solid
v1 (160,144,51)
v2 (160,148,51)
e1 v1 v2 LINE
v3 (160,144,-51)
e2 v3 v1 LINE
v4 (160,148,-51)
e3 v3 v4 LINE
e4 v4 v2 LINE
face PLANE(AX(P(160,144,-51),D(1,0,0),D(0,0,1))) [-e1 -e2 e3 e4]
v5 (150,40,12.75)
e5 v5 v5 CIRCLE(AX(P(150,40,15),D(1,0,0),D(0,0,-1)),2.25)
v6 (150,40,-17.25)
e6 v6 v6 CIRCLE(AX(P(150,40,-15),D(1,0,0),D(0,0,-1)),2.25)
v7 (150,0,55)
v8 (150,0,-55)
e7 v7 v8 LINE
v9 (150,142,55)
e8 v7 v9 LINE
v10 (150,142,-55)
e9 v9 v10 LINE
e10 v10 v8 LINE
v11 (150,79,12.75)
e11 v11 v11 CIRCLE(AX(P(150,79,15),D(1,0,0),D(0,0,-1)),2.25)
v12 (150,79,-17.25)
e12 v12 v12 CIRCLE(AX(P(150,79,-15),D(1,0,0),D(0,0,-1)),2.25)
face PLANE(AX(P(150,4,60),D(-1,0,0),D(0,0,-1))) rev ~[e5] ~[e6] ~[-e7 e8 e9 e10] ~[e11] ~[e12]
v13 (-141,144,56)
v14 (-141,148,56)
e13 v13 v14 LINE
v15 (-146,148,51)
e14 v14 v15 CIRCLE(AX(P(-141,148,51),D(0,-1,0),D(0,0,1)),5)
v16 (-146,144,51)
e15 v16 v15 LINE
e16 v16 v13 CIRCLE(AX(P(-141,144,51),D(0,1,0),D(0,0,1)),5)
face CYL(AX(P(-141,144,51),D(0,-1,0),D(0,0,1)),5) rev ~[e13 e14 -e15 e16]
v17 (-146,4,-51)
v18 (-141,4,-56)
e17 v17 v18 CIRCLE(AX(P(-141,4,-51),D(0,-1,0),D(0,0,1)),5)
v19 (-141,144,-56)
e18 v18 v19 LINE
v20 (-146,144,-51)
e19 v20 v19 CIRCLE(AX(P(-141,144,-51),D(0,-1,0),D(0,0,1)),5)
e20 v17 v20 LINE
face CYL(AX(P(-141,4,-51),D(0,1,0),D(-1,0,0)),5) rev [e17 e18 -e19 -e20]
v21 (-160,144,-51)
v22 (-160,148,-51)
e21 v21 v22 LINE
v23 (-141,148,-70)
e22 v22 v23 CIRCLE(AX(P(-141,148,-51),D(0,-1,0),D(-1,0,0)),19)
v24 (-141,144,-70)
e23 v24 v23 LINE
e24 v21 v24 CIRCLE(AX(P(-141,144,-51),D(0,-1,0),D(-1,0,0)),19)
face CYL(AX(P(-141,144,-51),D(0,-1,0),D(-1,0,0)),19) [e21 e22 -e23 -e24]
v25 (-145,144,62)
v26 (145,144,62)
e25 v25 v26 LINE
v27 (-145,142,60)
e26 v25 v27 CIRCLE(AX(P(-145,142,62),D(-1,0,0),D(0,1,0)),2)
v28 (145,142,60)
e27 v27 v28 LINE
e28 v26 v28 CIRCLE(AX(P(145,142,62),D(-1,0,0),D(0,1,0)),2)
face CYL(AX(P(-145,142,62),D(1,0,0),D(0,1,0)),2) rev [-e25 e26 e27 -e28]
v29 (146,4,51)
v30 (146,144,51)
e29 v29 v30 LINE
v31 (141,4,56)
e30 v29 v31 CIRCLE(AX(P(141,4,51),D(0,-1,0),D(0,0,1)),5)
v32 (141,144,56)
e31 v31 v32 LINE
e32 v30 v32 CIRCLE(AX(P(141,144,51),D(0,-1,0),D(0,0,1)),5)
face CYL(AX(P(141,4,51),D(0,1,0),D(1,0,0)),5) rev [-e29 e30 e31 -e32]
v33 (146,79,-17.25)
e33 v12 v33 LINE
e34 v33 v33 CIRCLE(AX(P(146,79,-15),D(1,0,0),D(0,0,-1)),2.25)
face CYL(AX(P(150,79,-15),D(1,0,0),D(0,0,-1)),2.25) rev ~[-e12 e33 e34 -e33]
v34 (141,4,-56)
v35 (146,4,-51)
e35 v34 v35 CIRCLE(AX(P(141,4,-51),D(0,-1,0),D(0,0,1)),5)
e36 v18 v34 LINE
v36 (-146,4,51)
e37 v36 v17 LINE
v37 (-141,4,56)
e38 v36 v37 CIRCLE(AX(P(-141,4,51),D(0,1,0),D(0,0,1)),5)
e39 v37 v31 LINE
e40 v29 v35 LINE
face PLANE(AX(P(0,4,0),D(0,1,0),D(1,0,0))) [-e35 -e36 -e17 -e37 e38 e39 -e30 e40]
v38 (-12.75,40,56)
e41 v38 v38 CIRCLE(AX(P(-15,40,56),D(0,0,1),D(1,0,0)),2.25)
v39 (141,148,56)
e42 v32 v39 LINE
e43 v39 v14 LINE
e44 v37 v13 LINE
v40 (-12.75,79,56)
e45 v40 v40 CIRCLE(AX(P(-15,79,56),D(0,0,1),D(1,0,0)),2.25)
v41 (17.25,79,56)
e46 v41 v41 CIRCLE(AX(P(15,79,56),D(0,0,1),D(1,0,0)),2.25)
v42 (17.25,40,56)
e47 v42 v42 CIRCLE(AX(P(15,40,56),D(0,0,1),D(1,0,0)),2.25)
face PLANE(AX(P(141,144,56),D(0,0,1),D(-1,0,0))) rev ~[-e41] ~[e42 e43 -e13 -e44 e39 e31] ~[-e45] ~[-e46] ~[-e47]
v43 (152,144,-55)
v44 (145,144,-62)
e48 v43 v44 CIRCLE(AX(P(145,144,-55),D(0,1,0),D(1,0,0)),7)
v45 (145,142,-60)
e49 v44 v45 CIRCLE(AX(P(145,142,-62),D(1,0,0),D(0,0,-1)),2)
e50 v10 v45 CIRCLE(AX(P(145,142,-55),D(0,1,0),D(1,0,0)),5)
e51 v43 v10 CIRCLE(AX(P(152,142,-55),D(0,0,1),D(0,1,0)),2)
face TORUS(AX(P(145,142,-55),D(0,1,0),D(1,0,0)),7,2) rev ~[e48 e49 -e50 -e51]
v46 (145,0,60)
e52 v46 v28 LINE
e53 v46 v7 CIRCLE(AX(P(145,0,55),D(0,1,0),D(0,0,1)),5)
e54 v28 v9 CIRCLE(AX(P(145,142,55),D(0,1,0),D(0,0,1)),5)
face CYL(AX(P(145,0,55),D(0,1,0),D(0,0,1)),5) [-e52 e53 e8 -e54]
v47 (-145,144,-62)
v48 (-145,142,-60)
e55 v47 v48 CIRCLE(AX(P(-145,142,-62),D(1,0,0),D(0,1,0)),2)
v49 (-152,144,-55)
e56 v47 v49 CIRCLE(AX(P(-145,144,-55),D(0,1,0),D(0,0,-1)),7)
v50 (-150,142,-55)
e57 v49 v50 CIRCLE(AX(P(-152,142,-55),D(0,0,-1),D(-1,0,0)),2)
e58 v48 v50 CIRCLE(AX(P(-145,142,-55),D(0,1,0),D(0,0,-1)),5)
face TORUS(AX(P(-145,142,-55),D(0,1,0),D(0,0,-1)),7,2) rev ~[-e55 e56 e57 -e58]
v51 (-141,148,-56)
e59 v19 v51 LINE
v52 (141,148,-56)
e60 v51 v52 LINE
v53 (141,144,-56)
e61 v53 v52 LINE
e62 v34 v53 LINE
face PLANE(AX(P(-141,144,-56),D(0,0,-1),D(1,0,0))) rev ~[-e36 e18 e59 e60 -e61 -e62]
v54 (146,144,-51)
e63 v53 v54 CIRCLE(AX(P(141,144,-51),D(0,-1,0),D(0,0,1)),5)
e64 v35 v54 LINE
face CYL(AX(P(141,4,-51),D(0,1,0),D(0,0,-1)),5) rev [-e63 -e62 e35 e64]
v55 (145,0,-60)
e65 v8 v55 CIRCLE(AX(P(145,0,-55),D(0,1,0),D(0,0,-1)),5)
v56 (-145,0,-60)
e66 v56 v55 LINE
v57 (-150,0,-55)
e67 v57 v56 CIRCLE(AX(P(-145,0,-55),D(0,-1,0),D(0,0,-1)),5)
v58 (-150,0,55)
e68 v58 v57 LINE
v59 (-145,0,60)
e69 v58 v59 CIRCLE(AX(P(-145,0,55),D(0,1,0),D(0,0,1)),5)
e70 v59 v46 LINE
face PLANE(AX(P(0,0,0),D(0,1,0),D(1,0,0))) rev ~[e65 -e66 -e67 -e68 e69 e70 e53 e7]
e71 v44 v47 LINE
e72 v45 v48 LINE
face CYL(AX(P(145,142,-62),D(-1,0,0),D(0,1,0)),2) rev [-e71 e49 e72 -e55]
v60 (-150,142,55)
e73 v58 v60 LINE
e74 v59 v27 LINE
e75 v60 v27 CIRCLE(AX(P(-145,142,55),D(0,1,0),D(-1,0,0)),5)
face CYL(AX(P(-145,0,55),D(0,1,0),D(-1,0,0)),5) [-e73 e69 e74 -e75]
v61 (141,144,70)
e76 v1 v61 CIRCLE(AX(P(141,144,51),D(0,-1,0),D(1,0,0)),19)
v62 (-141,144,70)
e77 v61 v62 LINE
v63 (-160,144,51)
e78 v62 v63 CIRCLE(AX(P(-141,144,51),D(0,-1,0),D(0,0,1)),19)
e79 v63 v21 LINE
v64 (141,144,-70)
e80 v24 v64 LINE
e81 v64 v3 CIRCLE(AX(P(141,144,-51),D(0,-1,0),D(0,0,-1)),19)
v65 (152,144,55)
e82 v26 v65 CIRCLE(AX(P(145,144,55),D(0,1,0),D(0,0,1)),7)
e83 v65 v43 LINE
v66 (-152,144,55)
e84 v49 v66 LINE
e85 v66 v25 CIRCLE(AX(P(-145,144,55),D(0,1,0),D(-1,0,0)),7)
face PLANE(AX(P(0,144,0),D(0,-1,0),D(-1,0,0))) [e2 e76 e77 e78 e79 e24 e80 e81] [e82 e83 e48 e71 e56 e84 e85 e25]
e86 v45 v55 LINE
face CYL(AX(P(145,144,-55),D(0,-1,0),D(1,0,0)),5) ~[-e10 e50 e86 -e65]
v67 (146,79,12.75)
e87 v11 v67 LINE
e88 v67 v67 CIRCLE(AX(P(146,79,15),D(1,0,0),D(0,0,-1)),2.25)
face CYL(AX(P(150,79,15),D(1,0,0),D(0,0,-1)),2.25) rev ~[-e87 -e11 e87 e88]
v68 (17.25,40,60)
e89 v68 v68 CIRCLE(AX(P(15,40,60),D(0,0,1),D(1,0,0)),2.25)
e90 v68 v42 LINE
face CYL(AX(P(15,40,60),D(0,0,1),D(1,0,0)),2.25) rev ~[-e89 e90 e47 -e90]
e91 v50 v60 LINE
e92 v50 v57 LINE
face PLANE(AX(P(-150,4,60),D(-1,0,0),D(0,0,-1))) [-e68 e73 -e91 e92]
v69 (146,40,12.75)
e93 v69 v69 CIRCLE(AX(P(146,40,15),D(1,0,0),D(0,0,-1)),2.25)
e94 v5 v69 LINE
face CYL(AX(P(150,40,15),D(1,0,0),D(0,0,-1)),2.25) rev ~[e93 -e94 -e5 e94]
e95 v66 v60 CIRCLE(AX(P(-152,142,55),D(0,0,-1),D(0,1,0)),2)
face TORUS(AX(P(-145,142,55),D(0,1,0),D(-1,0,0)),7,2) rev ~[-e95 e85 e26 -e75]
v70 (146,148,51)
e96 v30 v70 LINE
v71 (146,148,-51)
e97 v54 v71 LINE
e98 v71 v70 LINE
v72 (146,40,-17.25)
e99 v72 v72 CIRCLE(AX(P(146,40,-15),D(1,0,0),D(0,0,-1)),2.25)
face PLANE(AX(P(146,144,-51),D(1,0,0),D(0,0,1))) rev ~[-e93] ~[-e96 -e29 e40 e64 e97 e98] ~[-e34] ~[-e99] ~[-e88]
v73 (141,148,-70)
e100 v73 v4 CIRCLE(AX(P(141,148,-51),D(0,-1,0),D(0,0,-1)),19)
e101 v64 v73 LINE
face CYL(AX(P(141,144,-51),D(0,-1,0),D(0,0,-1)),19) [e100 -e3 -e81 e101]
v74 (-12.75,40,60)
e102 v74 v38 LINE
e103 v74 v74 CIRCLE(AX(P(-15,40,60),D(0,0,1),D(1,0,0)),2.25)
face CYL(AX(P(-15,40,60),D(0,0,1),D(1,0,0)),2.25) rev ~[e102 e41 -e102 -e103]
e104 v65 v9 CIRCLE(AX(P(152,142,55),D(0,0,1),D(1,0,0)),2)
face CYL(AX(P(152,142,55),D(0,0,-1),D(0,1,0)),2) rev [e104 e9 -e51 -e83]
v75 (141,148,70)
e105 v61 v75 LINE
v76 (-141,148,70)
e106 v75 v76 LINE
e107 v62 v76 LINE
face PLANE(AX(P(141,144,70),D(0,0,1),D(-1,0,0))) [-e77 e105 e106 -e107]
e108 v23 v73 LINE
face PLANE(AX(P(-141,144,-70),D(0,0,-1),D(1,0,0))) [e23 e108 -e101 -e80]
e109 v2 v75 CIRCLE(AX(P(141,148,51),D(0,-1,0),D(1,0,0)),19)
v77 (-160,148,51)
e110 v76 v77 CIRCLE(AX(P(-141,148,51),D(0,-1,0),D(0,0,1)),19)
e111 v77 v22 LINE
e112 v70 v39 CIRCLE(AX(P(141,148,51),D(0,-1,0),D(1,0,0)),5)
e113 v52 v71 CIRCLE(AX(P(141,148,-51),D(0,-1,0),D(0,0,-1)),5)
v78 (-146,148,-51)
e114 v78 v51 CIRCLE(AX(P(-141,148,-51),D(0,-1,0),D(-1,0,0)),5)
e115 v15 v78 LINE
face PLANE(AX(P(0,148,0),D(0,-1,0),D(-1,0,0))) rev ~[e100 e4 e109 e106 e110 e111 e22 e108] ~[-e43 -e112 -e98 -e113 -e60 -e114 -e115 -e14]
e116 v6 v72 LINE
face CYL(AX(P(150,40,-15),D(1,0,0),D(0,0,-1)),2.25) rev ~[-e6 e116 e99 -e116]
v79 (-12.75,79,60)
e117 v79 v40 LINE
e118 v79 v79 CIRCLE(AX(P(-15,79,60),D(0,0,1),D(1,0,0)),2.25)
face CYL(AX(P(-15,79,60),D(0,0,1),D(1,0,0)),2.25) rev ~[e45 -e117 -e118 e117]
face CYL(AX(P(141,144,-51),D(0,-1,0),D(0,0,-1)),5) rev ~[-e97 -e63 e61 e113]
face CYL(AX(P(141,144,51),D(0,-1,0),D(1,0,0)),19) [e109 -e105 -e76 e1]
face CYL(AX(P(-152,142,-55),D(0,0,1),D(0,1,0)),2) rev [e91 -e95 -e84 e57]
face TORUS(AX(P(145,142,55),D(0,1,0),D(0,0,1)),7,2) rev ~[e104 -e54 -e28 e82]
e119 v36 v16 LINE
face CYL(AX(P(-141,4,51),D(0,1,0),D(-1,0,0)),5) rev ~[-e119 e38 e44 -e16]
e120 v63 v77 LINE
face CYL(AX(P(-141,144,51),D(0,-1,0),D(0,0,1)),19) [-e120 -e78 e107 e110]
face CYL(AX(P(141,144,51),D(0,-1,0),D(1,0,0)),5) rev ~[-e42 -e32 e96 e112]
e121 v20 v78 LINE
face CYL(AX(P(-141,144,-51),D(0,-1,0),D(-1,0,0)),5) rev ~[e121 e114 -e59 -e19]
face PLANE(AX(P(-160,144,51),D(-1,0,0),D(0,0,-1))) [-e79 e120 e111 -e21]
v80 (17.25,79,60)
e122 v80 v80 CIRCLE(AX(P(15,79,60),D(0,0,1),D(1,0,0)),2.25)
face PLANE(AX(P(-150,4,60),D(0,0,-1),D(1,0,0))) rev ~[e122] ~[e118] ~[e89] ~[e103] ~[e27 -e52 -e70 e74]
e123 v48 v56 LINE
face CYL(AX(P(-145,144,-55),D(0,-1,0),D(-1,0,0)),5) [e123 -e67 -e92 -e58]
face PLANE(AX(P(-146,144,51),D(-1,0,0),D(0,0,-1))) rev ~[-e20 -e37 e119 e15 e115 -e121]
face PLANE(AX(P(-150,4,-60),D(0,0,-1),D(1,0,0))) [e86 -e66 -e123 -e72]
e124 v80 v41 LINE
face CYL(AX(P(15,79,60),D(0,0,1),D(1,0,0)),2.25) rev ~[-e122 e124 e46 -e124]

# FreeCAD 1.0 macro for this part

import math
import FreeCAD as App
import Part
import Sketcher
from FreeCAD import Vector


def edges_at(feature, points):
    """Names of the edges that pass closest to the given points."""
    edges = feature.Shape.Edges
    near = lambda p: min(range(len(edges)), key=lambda i: edges[i].distToShape(Part.Vertex(*p))[0])
    return sorted({f"Edge{near(p) + 1}" for p in points})

doc = App.newDocument("Part")
body = doc.addObject("PartDesign::Body", "Body")

sketch1 = body.newObject("Sketcher::SketchObject", "Sketch")
sketch1.AttachmentSupport = (doc.getObject("XZ_Plane"), [""])
sketch1.MapMode = "FlatFace"
sketch1.addGeometry([
    Part.LineSegment(Vector(-150, -60, 0), Vector(-150, 60, 0)),
    Part.LineSegment(Vector(-150, 60, 0), Vector(150, 60, 0)),
    Part.LineSegment(Vector(150, 60, 0), Vector(150, -60, 0)),
    Part.LineSegment(Vector(150, -60, 0), Vector(-150, -60, 0)),
], False)
sketch1.addConstraint([
    Sketcher.Constraint("Coincident", 0, 2, 1, 1),
    Sketcher.Constraint("Coincident", 1, 2, 2, 1),
    Sketcher.Constraint("Coincident", 2, 2, 3, 1),
    Sketcher.Constraint("Coincident", 3, 2, 0, 1),
    Sketcher.Constraint("Vertical", 0),
    Sketcher.Constraint("Horizontal", 1),
    Sketcher.Constraint("Vertical", 2),
    Sketcher.Constraint("Horizontal", 3),
    Sketcher.Constraint("Symmetric", 0, 2, 2, 2, -1, 1),
    Sketcher.Constraint("DistanceX", 1, 1, 1, 2, 300.0),
    Sketcher.Constraint("DistanceY", 0, 1, 0, 2, 120.0),
])
pad1 = body.newObject("PartDesign::Pad", "Pad")
pad1.Profile = sketch1
pad1.Length = 4
pad1.Reversed = True

sketch2 = body.newObject("Sketcher::SketchObject", "Sketch001")
sketch2.AttachmentSupport = (doc.getObject("XZ_Plane"), [""])
sketch2.MapMode = "FlatFace"
sketch2.AttachmentOffset = App.Placement(Vector(0, 0, -4), App.Rotation())
sketch2.addGeometry([
    Part.LineSegment(Vector(-150, -60, 0), Vector(-150, 60, 0)),
    Part.LineSegment(Vector(-150, 60, 0), Vector(150, 60, 0)),
    Part.LineSegment(Vector(150, 60, 0), Vector(150, -60, 0)),
    Part.LineSegment(Vector(150, -60, 0), Vector(-150, -60, 0)),
    Part.LineSegment(Vector(146, 56, 0), Vector(-146, 56, 0)),
    Part.LineSegment(Vector(-146, 56, 0), Vector(-146, -56, 0)),
    Part.LineSegment(Vector(-146, -56, 0), Vector(146, -56, 0)),
    Part.LineSegment(Vector(146, -56, 0), Vector(146, 56, 0)),
], False)
sketch2.addConstraint([
    Sketcher.Constraint("Coincident", 0, 2, 1, 1),
    Sketcher.Constraint("Coincident", 1, 2, 2, 1),
    Sketcher.Constraint("Coincident", 2, 2, 3, 1),
    Sketcher.Constraint("Coincident", 3, 2, 0, 1),
    Sketcher.Constraint("Coincident", 4, 2, 5, 1),
    Sketcher.Constraint("Coincident", 5, 2, 6, 1),
    Sketcher.Constraint("Coincident", 6, 2, 7, 1),
    Sketcher.Constraint("Coincident", 7, 2, 4, 1),
    Sketcher.Constraint("Vertical", 0),
    Sketcher.Constraint("Horizontal", 1),
    Sketcher.Constraint("Vertical", 2),
    Sketcher.Constraint("Horizontal", 3),
    Sketcher.Constraint("Horizontal", 4),
    Sketcher.Constraint("Vertical", 5),
    Sketcher.Constraint("Horizontal", 6),
    Sketcher.Constraint("Vertical", 7),
    Sketcher.Constraint("Symmetric", 0, 2, 2, 2, -1, 1),
    Sketcher.Constraint("Symmetric", 4, 2, 6, 2, -1, 1),
    Sketcher.Constraint("DistanceX", 1, 1, 1, 2, 300.0),
    Sketcher.Constraint("DistanceX", 4, 2, 4, 1, 292.0),
    Sketcher.Constraint("DistanceY", 0, 1, 0, 2, 120.0),
    Sketcher.Constraint("DistanceY", 5, 2, 5, 1, 112.0),
])
pad2 = body.newObject("PartDesign::Pad", "Pad001")
pad2.Profile = sketch2
pad2.Length = 140
pad2.Reversed = True
doc.recompute()

fillet = body.newObject("PartDesign::Fillet", "Fillet")
fillet.Base = (pad2, edges_at(pad2, [
    (-146, 74, 56),
    (146, 74, 56),
    (146, 74, -56),
    (-146, 74, -56),
    (-150, 72, -60),
    (150, 72, -60),
    (150, 72, 60),
    (-150, 72, 60),
]))
fillet.Radius = 5

sketch3 = body.newObject("Sketcher::SketchObject", "Sketch002")
sketch3.AttachmentSupport = (doc.getObject("XZ_Plane"), [""])
sketch3.MapMode = "FlatFace"
sketch3.AttachmentOffset = App.Placement(Vector(0, 0, -144), App.Rotation())
sketch3.addGeometry([
    Part.LineSegment(Vector(141, -70, 0), Vector(-141, -70, 0)),
    Part.ArcOfCircle(Part.Circle(Vector(-141, -51, 0), Vector(0, 0, 1), 19), math.radians(180), math.radians(270)),
    Part.LineSegment(Vector(-160, -51, 0), Vector(-160, 51, 0)),
    Part.ArcOfCircle(Part.Circle(Vector(-141, 51, 0), Vector(0, 0, 1), 19), math.radians(90), math.radians(180)),
    Part.LineSegment(Vector(-141, 70, 0), Vector(141, 70, 0)),
    Part.ArcOfCircle(Part.Circle(Vector(141, 51, 0), Vector(0, 0, 1), 19), math.radians(0), math.radians(90)),
    Part.LineSegment(Vector(160, 51, 0), Vector(160, -51, 0)),
    Part.ArcOfCircle(Part.Circle(Vector(141, -51, 0), Vector(0, 0, 1), 19), math.radians(-90), math.radians(0)),
    Part.LineSegment(Vector(-141, -56, 0), Vector(141, -56, 0)),
    Part.ArcOfCircle(Part.Circle(Vector(141, -51, 0), Vector(0, 0, 1), 5), math.radians(-90), math.radians(0)),
    Part.LineSegment(Vector(146, -51, 0), Vector(146, 51, 0)),
    Part.ArcOfCircle(Part.Circle(Vector(141, 51, 0), Vector(0, 0, 1), 5), math.radians(0), math.radians(90)),
    Part.LineSegment(Vector(141, 56, 0), Vector(-141, 56, 0)),
    Part.ArcOfCircle(Part.Circle(Vector(-141, 51, 0), Vector(0, 0, 1), 5), math.radians(90), math.radians(180)),
    Part.LineSegment(Vector(-146, 51, 0), Vector(-146, -51, 0)),
    Part.ArcOfCircle(Part.Circle(Vector(-141, -51, 0), Vector(0, 0, 1), 5), math.radians(180), math.radians(270)),
], False)
sketch3.addConstraint([
    Sketcher.Constraint("Tangent", 0, 2, 1, 2),
    Sketcher.Constraint("Tangent", 1, 1, 2, 1),
    Sketcher.Constraint("Tangent", 2, 2, 3, 2),
    Sketcher.Constraint("Tangent", 3, 1, 4, 1),
    Sketcher.Constraint("Tangent", 4, 2, 5, 2),
    Sketcher.Constraint("Tangent", 5, 1, 6, 1),
    Sketcher.Constraint("Tangent", 6, 2, 7, 2),
    Sketcher.Constraint("Tangent", 7, 1, 0, 1),
    Sketcher.Constraint("Tangent", 8, 2, 9, 1),
    Sketcher.Constraint("Tangent", 9, 2, 10, 1),
    Sketcher.Constraint("Tangent", 10, 2, 11, 1),
    Sketcher.Constraint("Tangent", 11, 2, 12, 1),
    Sketcher.Constraint("Tangent", 12, 2, 13, 1),
    Sketcher.Constraint("Tangent", 13, 2, 14, 1),
    Sketcher.Constraint("Tangent", 14, 2, 15, 1),
    Sketcher.Constraint("Tangent", 15, 2, 8, 1),
    Sketcher.Constraint("Horizontal", 0),
    Sketcher.Constraint("Vertical", 2),
    Sketcher.Constraint("Horizontal", 4),
    Sketcher.Constraint("Vertical", 6),
    Sketcher.Constraint("Horizontal", 8),
    Sketcher.Constraint("Vertical", 10),
    Sketcher.Constraint("Horizontal", 12),
    Sketcher.Constraint("Vertical", 14),
    Sketcher.Constraint("Coincident", 9, 3, 7, 3),
    Sketcher.Constraint("Coincident", 11, 3, 5, 3),
    Sketcher.Constraint("Coincident", 13, 3, 3, 3),
    Sketcher.Constraint("Equal", 1, 3),
    Sketcher.Constraint("Equal", 3, 5),
    Sketcher.Constraint("Equal", 5, 7),
    Sketcher.Constraint("Equal", 13, 15),
    Sketcher.Constraint("Symmetric", 1, 3, 5, 3, -1, 1),
    Sketcher.Constraint("Radius", 1, 19.0),
    Sketcher.Constraint("Radius", 9, 5.0),
    Sketcher.Constraint("DistanceX", 0, 2, 0, 1, 282.0),
    Sketcher.Constraint("DistanceY", 2, 1, 2, 2, 102.0),
])
pad3 = body.newObject("PartDesign::Pad", "Pad002")
pad3.Profile = sketch3
pad3.Length = 4
pad3.Reversed = True
doc.recompute()

fillet2 = body.newObject("PartDesign::Fillet", "Fillet001")
fillet2.Base = (pad3, edges_at(pad3, [
    (0, 144, 60),
    (-150, 144, 0),
    (150, 144, 0),
    (0, 144, -60),
    (-148.536, 144, -58.536),
    (148.536, 144, -58.536),
    (148.536, 144, 58.536),
    (-148.536, 144, 58.536),
]))
fillet2.Radius = 2

sketch4 = body.newObject("Sketcher::SketchObject", "Sketch003")
sketch4.AttachmentSupport = (doc.getObject("YZ_Plane"), [""])
sketch4.MapMode = "FlatFace"
sketch4.AttachmentOffset = App.Placement(Vector(0, 0, 150), App.Rotation())
sketch4.addGeometry(Part.Circle(Vector(79, 15, 0), Vector(0, 0, 1), 2.25), False)
sketch4.addConstraint([
    Sketcher.Constraint("Diameter", 0, 4.5),
    Sketcher.Constraint("DistanceX", -1, 1, 0, 3, 79.0),
    Sketcher.Constraint("DistanceY", -1, 1, 0, 3, 15.0),
])
pocket1 = body.newObject("PartDesign::Pocket", "Pocket")
pocket1.Profile = sketch4
pocket1.Type = "UpToFirst"

sketch5 = body.newObject("Sketcher::SketchObject", "Sketch004")
sketch5.AttachmentSupport = (doc.getObject("YZ_Plane"), [""])
sketch5.MapMode = "FlatFace"
sketch5.AttachmentOffset = App.Placement(Vector(0, 0, 150), App.Rotation())
sketch5.addGeometry(Part.Circle(Vector(79, -15, 0), Vector(0, 0, 1), 2.25), False)
sketch5.addConstraint([
    Sketcher.Constraint("Diameter", 0, 4.5),
    Sketcher.Constraint("DistanceX", -1, 1, 0, 3, 79.0),
    Sketcher.Constraint("DistanceY", 0, 3, -1, 1, 15.0),
])
pocket2 = body.newObject("PartDesign::Pocket", "Pocket001")
pocket2.Profile = sketch5
pocket2.Type = "UpToFirst"

sketch6 = body.newObject("Sketcher::SketchObject", "Sketch005")
sketch6.AttachmentSupport = (doc.getObject("YZ_Plane"), [""])
sketch6.MapMode = "FlatFace"
sketch6.AttachmentOffset = App.Placement(Vector(0, 0, 150), App.Rotation())
sketch6.addGeometry(Part.Circle(Vector(40, -15, 0), Vector(0, 0, 1), 2.25), False)
sketch6.addConstraint([
    Sketcher.Constraint("Diameter", 0, 4.5),
    Sketcher.Constraint("DistanceX", -1, 1, 0, 3, 40.0),
    Sketcher.Constraint("DistanceY", 0, 3, -1, 1, 15.0),
])
pocket3 = body.newObject("PartDesign::Pocket", "Pocket002")
pocket3.Profile = sketch6
pocket3.Type = "UpToFirst"

sketch7 = body.newObject("Sketcher::SketchObject", "Sketch006")
sketch7.AttachmentSupport = (doc.getObject("YZ_Plane"), [""])
sketch7.MapMode = "FlatFace"
sketch7.AttachmentOffset = App.Placement(Vector(0, 0, 150), App.Rotation())
sketch7.addGeometry(Part.Circle(Vector(40, 15, 0), Vector(0, 0, 1), 2.25), False)
sketch7.addConstraint([
    Sketcher.Constraint("Diameter", 0, 4.5),
    Sketcher.Constraint("DistanceX", -1, 1, 0, 3, 40.0),
    Sketcher.Constraint("DistanceY", -1, 1, 0, 3, 15.0),
])
pocket4 = body.newObject("PartDesign::Pocket", "Pocket003")
pocket4.Profile = sketch7
pocket4.Type = "UpToFirst"

sketch8 = body.newObject("Sketcher::SketchObject", "Sketch007")
sketch8.AttachmentSupport = (doc.getObject("XY_Plane"), [""])
sketch8.MapMode = "FlatFace"
sketch8.AttachmentOffset = App.Placement(Vector(0, 0, 60), App.Rotation())
sketch8.addGeometry(Part.Circle(Vector(15, 79, 0), Vector(0, 0, 1), 2.25), False)
sketch8.addConstraint([
    Sketcher.Constraint("Diameter", 0, 4.5),
    Sketcher.Constraint("DistanceX", -1, 1, 0, 3, 15.0),
    Sketcher.Constraint("DistanceY", -1, 1, 0, 3, 79.0),
])
pocket5 = body.newObject("PartDesign::Pocket", "Pocket004")
pocket5.Profile = sketch8
pocket5.Type = "UpToFirst"

sketch9 = body.newObject("Sketcher::SketchObject", "Sketch008")
sketch9.AttachmentSupport = (doc.getObject("XY_Plane"), [""])
sketch9.MapMode = "FlatFace"
sketch9.AttachmentOffset = App.Placement(Vector(0, 0, 60), App.Rotation())
sketch9.addGeometry(Part.Circle(Vector(-15, 79, 0), Vector(0, 0, 1), 2.25), False)
sketch9.addConstraint([
    Sketcher.Constraint("Diameter", 0, 4.5),
    Sketcher.Constraint("DistanceX", 0, 3, -1, 1, 15.0),
    Sketcher.Constraint("DistanceY", -1, 1, 0, 3, 79.0),
])
pocket6 = body.newObject("PartDesign::Pocket", "Pocket005")
pocket6.Profile = sketch9
pocket6.Type = "UpToFirst"

sketch10 = body.newObject("Sketcher::SketchObject", "Sketch009")
sketch10.AttachmentSupport = (doc.getObject("XY_Plane"), [""])
sketch10.MapMode = "FlatFace"
sketch10.AttachmentOffset = App.Placement(Vector(0, 0, 60), App.Rotation())
sketch10.addGeometry(Part.Circle(Vector(-15, 40, 0), Vector(0, 0, 1), 2.25), False)
sketch10.addConstraint([
    Sketcher.Constraint("Diameter", 0, 4.5),
    Sketcher.Constraint("DistanceX", 0, 3, -1, 1, 15.0),
    Sketcher.Constraint("DistanceY", -1, 1, 0, 3, 40.0),
])
pocket7 = body.newObject("PartDesign::Pocket", "Pocket006")
pocket7.Profile = sketch10
pocket7.Type = "UpToFirst"

sketch11 = body.newObject("Sketcher::SketchObject", "Sketch010")
sketch11.AttachmentSupport = (doc.getObject("XY_Plane"), [""])
sketch11.MapMode = "FlatFace"
sketch11.AttachmentOffset = App.Placement(Vector(0, 0, 60), App.Rotation())
sketch11.addGeometry(Part.Circle(Vector(15, 40, 0), Vector(0, 0, 1), 2.25), False)
sketch11.addConstraint([
    Sketcher.Constraint("Diameter", 0, 4.5),
    Sketcher.Constraint("DistanceX", -1, 1, 0, 3, 15.0),
    Sketcher.Constraint("DistanceY", -1, 1, 0, 3, 40.0),
])
pocket8 = body.newObject("PartDesign::Pocket", "Pocket007")
pocket8.Profile = sketch11
pocket8.Type = "UpToFirst"

doc.recompute()
